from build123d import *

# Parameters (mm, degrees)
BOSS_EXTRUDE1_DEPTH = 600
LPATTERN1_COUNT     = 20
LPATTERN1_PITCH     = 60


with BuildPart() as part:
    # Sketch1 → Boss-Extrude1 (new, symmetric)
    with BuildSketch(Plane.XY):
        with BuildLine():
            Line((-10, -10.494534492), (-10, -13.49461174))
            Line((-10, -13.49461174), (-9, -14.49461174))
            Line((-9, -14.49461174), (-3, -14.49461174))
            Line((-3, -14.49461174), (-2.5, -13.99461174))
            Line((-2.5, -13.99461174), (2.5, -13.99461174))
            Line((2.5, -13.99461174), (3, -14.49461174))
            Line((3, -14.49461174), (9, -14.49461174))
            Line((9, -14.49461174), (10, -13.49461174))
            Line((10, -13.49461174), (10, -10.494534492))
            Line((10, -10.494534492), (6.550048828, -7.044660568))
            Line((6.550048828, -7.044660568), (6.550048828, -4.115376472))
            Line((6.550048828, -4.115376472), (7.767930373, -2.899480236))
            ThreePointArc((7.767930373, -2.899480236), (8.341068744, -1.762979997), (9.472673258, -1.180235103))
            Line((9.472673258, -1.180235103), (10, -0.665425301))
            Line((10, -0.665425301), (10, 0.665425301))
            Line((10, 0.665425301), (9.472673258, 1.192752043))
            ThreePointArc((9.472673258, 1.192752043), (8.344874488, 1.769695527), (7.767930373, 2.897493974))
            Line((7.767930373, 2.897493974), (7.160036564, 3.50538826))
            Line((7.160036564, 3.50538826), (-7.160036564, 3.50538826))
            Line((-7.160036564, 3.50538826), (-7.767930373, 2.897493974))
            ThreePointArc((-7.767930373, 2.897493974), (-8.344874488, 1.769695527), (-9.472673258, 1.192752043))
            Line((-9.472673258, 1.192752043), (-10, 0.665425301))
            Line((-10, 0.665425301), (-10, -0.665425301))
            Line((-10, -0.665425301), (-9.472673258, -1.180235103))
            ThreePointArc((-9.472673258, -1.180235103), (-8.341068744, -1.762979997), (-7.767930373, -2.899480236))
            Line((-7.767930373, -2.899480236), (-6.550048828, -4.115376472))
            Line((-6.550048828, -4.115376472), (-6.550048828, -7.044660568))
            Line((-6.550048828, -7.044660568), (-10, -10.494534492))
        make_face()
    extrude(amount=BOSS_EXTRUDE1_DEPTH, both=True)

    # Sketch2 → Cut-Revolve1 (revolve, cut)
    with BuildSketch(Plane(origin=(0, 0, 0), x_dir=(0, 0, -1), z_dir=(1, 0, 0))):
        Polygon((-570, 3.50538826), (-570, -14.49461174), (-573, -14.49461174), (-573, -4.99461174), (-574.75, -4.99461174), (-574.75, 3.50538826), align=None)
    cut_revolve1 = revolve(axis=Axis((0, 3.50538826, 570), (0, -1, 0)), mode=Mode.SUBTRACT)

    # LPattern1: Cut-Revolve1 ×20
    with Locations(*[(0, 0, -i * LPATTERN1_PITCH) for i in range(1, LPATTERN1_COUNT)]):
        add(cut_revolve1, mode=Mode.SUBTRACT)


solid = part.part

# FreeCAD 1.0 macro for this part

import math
import FreeCAD as App
import Part
import Sketcher
Q = App.Units.Quantity

doc = App.newDocument("Part")
body = doc.addObject("PartDesign::Body", "Body")

sketch1 = doc.addObject("Sketcher::SketchObject", "Sketch")
body.addObject(sketch1)
sketch1.AttachmentSupport = (doc.XY_Plane, [""])
sketch1.MapMode = "FlatFace"
sketch1.addGeometry([
    Part.LineSegment(App.Vector(-10, -10.5, 0), App.Vector(-10, -13.5, 0)),
    Part.LineSegment(App.Vector(-10, -13.5, 0), App.Vector(-9, -14.5, 0)),
    Part.LineSegment(App.Vector(-9, -14.5, 0), App.Vector(-3, -14.5, 0)),
    Part.LineSegment(App.Vector(-3, -14.5, 0), App.Vector(-2.5, -14, 0)),
    Part.LineSegment(App.Vector(-2.5, -14, 0), App.Vector(2.5, -14, 0)),
    Part.LineSegment(App.Vector(2.5, -14, 0), App.Vector(3, -14.5, 0)),
    Part.LineSegment(App.Vector(3, -14.5, 0), App.Vector(9, -14.5, 0)),
    Part.LineSegment(App.Vector(9, -14.5, 0), App.Vector(10, -13.5, 0)),
    Part.LineSegment(App.Vector(10, -13.5, 0), App.Vector(10, -10.5, 0)),
    Part.LineSegment(App.Vector(10, -10.5, 0), App.Vector(6.6, -7, 0)),
    Part.LineSegment(App.Vector(6.6, -7, 0), App.Vector(6.6, -4.1, 0)),
    Part.LineSegment(App.Vector(6.6, -4.1, 0), App.Vector(7.8, -2.9, 0)),
    Part.ArcOfCircle(Part.Circle(App.Vector(9.8, -3.2, 0), App.Vector(0, 0, 1), 2.1), math.radians(99), math.radians(171)),
    Part.LineSegment(App.Vector(9.5, -1.2, 0), App.Vector(10, -0.7, 0)),
    Part.LineSegment(App.Vector(10, -0.7, 0), App.Vector(10, 0.7, 0)),
    Part.LineSegment(App.Vector(10, 0.7, 0), App.Vector(9.5, 1.2, 0)),
    Part.ArcOfCircle(Part.Circle(App.Vector(9.8, 3.2, 0), App.Vector(0, 0, 1), 2.1), math.radians(-171), math.radians(-99)),
    Part.LineSegment(App.Vector(7.8, 2.9, 0), App.Vector(7.2, 3.5, 0)),
    Part.LineSegment(App.Vector(7.2, 3.5, 0), App.Vector(-7.2, 3.5, 0)),
    Part.LineSegment(App.Vector(-7.2, 3.5, 0), App.Vector(-7.8, 2.9, 0)),
    Part.ArcOfCircle(Part.Circle(App.Vector(-9.8, 3.2, 0), App.Vector(0, 0, 1), 2.1), math.radians(-81), math.radians(-9)),
    Part.LineSegment(App.Vector(-9.5, 1.2, 0), App.Vector(-10, 0.7, 0)),
    Part.LineSegment(App.Vector(-10, 0.7, 0), App.Vector(-10, -0.7, 0)),
    Part.LineSegment(App.Vector(-10, -0.7, 0), App.Vector(-9.5, -1.2, 0)),
    Part.ArcOfCircle(Part.Circle(App.Vector(-9.8, -3.2, 0), App.Vector(0, 0, 1), 2.1), math.radians(9), math.radians(81)),
    Part.LineSegment(App.Vector(-7.8, -2.9, 0), App.Vector(-6.6, -4.1, 0)),
    Part.LineSegment(App.Vector(-6.6, -4.1, 0), App.Vector(-6.6, -7, 0)),
    Part.LineSegment(App.Vector(-6.6, -7, 0), App.Vector(-10, -10.5, 0)),
], False)
sketch1.addConstraint([
    Sketcher.Constraint("Coincident", 0, 2, 1, 1),
    Sketcher.Constraint("Coincident", 1, 2, 2, 1),
    Sketcher.Constraint("Coincident", 2, 2, 3, 1),
    Sketcher.Constraint("Coincident", 3, 2, 4, 1),
    Sketcher.Constraint("Coincident", 4, 2, 5, 1),
    Sketcher.Constraint("Coincident", 5, 2, 6, 1),
    Sketcher.Constraint("Coincident", 6, 2, 7, 1),
    Sketcher.Constraint("Coincident", 7, 2, 8, 1),
    Sketcher.Constraint("Coincident", 8, 2, 9, 1),
    Sketcher.Constraint("Coincident", 9, 2, 10, 1),
    Sketcher.Constraint("Coincident", 10, 2, 11, 1),
    Sketcher.Constraint("Coincident", 11, 2, 12, 2),
    Sketcher.Constraint("Coincident", 12, 1, 13, 1),
    Sketcher.Constraint("Coincident", 13, 2, 14, 1),
    Sketcher.Constraint("Coincident", 14, 2, 15, 1),
    Sketcher.Constraint("Coincident", 15, 2, 16, 2),
    Sketcher.Constraint("Coincident", 16, 1, 17, 1),
    Sketcher.Constraint("Coincident", 17, 2, 18, 1),
    Sketcher.Constraint("Coincident", 18, 2, 19, 1),
    Sketcher.Constraint("Coincident", 19, 2, 20, 2),
    Sketcher.Constraint("Coincident", 20, 1, 21, 1),
    Sketcher.Constraint("Coincident", 21, 2, 22, 1),
    Sketcher.Constraint("Coincident", 22, 2, 23, 1),
    Sketcher.Constraint("Coincident", 23, 2, 24, 2),
    Sketcher.Constraint("Coincident", 24, 1, 25, 1),
    Sketcher.Constraint("Coincident", 25, 2, 26, 1),
    Sketcher.Constraint("Coincident", 26, 2, 27, 1),
    Sketcher.Constraint("Coincident", 27, 2, 0, 1),
    Sketcher.Constraint("Vertical", 0),
    Sketcher.Constraint("Horizontal", 2),
    Sketcher.Constraint("Horizontal", 4),
    Sketcher.Constraint("Horizontal", 6),
    Sketcher.Constraint("Vertical", 8),
    Sketcher.Constraint("Vertical", 10),
    Sketcher.Constraint("Vertical", 14),
    Sketcher.Constraint("Horizontal", 18),
    Sketcher.Constraint("Vertical", 22),
    Sketcher.Constraint("Vertical", 26),
    Sketcher.Constraint("Equal", 12, 16),
    Sketcher.Constraint("Equal", 16, 20),
    Sketcher.Constraint("Equal", 20, 24),
    Sketcher.Constraint("Symmetric", 13, 2, 21, 2, -1, 1),
    Sketcher.Constraint("Symmetric", 16, 3, 20, 3, -2),
    Sketcher.Constraint("Symmetric", 12, 3, 24, 3, -2),
    Sketcher.Constraint("Symmetric", 2, 2, 5, 2, -2),
    Sketcher.Constraint("Symmetric", 0, 2, 7, 2, -2),
    Sketcher.Constraint("Symmetric", 10, 2, 25, 2, -2),
    Sketcher.Constraint("Perpendicular", 1, 3),
    Sketcher.Constraint("Perpendicular", 3, 5),
    Sketcher.Constraint("Perpendicular", 5, 7),
    Sketcher.Constraint("Perpendicular", 7, 15),
    Sketcher.Constraint("Parallel", 15, 17),
    Sketcher.Constraint("Perpendicular", 17, 19),
    Sketcher.Constraint("Parallel", 19, 21),
    Sketcher.Constraint("Horizontal", 16, 1, 19, 2),
    Sketcher.Constraint("Horizontal", 15, 2, 20, 1),
    Sketcher.Constraint("Horizontal", 14, 2, 21, 2),
    Sketcher.Constraint("Horizontal", 13, 2, 22, 2),
    Sketcher.Constraint("Horizontal", 12, 1, 23, 2),
    Sketcher.Constraint("Horizontal", 11, 2, 24, 1),
    Sketcher.Constraint("Horizontal", 9, 2, 26, 2),
    Sketcher.Constraint("Horizontal", 8, 2, 27, 2),
    Sketcher.Constraint("Vertical", 8, 2, 13, 2),
    Sketcher.Constraint("Vertical", 12, 1, 15, 2),
    Sketcher.Constraint("Vertical", 11, 2, 16, 1),
    Sketcher.Constraint("DistanceX", 2, 1, 2, 2, Q("6 mm")),
    Sketcher.Constraint("DistanceX", 4, 1, 4, 2, Q("5 mm")),
    Sketcher.Constraint("Radius", 12, Q("2.059999 mm")),
    Sketcher.Constraint("DistanceX", 0, 2, -1, 1, Q("10 mm")),
    Sketcher.Constraint("DistanceX", 1, 2, -1, 1, Q("9 mm")),
    Sketcher.Constraint("DistanceY", 14, 1, 14, 2, Q("1.330851 mm")),
    Sketcher.Constraint("DistanceY", 12, 3, 12, 1, Q("2.033202 mm")),
    Sketcher.Constraint("DistanceY", 25, 2, 21, 2, Q("4.780802 mm")),
    Sketcher.Constraint("Distance", 11, Q("1.720941 mm")),
    Sketcher.Constraint("DistanceX", 18, 2, 18, 1, Q("14.320073 mm")),
    Sketcher.Constraint("DistanceY", 0, 2, 0, 1, Q("3.000077 mm")),
    Sketcher.Constraint("DistanceY", 10, 1, 10, 2, Q("2.929284 mm")),
    Sketcher.Constraint("DistanceY", 0, 2, -1, 1, Q("13.494612 mm")),
    Sketcher.Constraint("DistanceX", -1, 1, 9, 2, Q("6.550049 mm")),
    Sketcher.Constraint("DistanceX", -1, 1, 11, 2, Q("7.76793 mm")),
    Sketcher.Constraint("DistanceY", -1, 1, 17, 2, Q("3.505388 mm")),
    Sketcher.Constraint("DistanceX", 16, 3, 12, 3, Q("0.002351 mm")),
])
pad1 = doc.addObject("PartDesign::Pad", "Pad")
body.addObject(pad1)
pad1.Profile = sketch1
pad1.Length = 1200
pad1.Midplane = True

sketch2 = doc.addObject("Sketcher::SketchObject", "Sketch001")
body.addObject(sketch2)
sketch2.AttachmentSupport = (doc.YZ_Plane, [""])
sketch2.MapMode = "FlatFace"
sketch2.addGeometry([
    Part.LineSegment(App.Vector(-14.5, 570, 0), App.Vector(3.5, 570, 0)),
    Part.LineSegment(App.Vector(3.5, 570, 0), App.Vector(3.5, 574.8, 0)),
    Part.LineSegment(App.Vector(3.5, 574.8, 0), App.Vector(-5, 574.8, 0)),
    Part.LineSegment(App.Vector(-5, 574.8, 0), App.Vector(-5, 573, 0)),
    Part.LineSegment(App.Vector(-5, 573, 0), App.Vector(-14.5, 573, 0)),
    Part.LineSegment(App.Vector(-14.5, 573, 0), App.Vector(-14.5, 570, 0)),
], False)
sketch2.addGeometry(Part.LineSegment(App.Vector(3.5, 570, 0), App.Vector(-14.5, 570, 0)), True)
sketch2.addConstraint([
    Sketcher.Constraint("Coincident", 0, 2, 1, 1),
    Sketcher.Constraint("Coincident", 1, 2, 2, 1),
    Sketcher.Constraint("Coincident", 2, 2, 3, 1),
    Sketcher.Constraint("Coincident", 3, 2, 4, 1),
    Sketcher.Constraint("Coincident", 4, 2, 5, 1),
    Sketcher.Constraint("Coincident", 5, 2, 0, 1),
    Sketcher.Constraint("Horizontal", 0),
    Sketcher.Constraint("Vertical", 1),
    Sketcher.Constraint("Horizontal", 2),
    Sketcher.Constraint("Vertical", 3),
    Sketcher.Constraint("Horizontal", 4),
    Sketcher.Constraint("Vertical", 5),
    Sketcher.Constraint("Horizontal", 6),
    Sketcher.Constraint("Coincident", 6, 1, 0, 2),
    Sketcher.Constraint("Vertical", 4, 2, 6, 2),
    Sketcher.Constraint("DistanceX", 0, 1, 0, 2, Q("18 mm")),
    Sketcher.Constraint("DistanceY", 5, 2, 5, 1, Q("3 mm")),
    Sketcher.Constraint("DistanceX", 2, 2, 2, 1, Q("8.5 mm")),
    Sketcher.Constraint("DistanceY", -1, 1, 0, 2, Q("570 mm")),
    Sketcher.Constraint("DistanceY", 1, 1, 1, 2, Q("4.75 mm")),
    Sketcher.Constraint("DistanceX", -1, 1, 0, 2, Q("3.505388 mm")),
])
groove = doc.addObject("PartDesign::Groove", "Groove")
body.addObject(groove)
groove.Profile = sketch2
groove.ReferenceAxis = (sketch2, ["Axis0"])
groove.Angle = 360
doc.recompute()

linearpattern = doc.addObject("PartDesign::LinearPattern", "LinearPattern")
body.addObject(linearpattern)
linearpattern.Originals = [groove]
linearpattern.Direction = (doc.Z_Axis, [""])
linearpattern.Mode = "offset"
linearpattern.Offset = 60
linearpattern.Occurrences = 20
linearpattern.Reversed = True
body.Tip = linearpattern

doc.recompute()
